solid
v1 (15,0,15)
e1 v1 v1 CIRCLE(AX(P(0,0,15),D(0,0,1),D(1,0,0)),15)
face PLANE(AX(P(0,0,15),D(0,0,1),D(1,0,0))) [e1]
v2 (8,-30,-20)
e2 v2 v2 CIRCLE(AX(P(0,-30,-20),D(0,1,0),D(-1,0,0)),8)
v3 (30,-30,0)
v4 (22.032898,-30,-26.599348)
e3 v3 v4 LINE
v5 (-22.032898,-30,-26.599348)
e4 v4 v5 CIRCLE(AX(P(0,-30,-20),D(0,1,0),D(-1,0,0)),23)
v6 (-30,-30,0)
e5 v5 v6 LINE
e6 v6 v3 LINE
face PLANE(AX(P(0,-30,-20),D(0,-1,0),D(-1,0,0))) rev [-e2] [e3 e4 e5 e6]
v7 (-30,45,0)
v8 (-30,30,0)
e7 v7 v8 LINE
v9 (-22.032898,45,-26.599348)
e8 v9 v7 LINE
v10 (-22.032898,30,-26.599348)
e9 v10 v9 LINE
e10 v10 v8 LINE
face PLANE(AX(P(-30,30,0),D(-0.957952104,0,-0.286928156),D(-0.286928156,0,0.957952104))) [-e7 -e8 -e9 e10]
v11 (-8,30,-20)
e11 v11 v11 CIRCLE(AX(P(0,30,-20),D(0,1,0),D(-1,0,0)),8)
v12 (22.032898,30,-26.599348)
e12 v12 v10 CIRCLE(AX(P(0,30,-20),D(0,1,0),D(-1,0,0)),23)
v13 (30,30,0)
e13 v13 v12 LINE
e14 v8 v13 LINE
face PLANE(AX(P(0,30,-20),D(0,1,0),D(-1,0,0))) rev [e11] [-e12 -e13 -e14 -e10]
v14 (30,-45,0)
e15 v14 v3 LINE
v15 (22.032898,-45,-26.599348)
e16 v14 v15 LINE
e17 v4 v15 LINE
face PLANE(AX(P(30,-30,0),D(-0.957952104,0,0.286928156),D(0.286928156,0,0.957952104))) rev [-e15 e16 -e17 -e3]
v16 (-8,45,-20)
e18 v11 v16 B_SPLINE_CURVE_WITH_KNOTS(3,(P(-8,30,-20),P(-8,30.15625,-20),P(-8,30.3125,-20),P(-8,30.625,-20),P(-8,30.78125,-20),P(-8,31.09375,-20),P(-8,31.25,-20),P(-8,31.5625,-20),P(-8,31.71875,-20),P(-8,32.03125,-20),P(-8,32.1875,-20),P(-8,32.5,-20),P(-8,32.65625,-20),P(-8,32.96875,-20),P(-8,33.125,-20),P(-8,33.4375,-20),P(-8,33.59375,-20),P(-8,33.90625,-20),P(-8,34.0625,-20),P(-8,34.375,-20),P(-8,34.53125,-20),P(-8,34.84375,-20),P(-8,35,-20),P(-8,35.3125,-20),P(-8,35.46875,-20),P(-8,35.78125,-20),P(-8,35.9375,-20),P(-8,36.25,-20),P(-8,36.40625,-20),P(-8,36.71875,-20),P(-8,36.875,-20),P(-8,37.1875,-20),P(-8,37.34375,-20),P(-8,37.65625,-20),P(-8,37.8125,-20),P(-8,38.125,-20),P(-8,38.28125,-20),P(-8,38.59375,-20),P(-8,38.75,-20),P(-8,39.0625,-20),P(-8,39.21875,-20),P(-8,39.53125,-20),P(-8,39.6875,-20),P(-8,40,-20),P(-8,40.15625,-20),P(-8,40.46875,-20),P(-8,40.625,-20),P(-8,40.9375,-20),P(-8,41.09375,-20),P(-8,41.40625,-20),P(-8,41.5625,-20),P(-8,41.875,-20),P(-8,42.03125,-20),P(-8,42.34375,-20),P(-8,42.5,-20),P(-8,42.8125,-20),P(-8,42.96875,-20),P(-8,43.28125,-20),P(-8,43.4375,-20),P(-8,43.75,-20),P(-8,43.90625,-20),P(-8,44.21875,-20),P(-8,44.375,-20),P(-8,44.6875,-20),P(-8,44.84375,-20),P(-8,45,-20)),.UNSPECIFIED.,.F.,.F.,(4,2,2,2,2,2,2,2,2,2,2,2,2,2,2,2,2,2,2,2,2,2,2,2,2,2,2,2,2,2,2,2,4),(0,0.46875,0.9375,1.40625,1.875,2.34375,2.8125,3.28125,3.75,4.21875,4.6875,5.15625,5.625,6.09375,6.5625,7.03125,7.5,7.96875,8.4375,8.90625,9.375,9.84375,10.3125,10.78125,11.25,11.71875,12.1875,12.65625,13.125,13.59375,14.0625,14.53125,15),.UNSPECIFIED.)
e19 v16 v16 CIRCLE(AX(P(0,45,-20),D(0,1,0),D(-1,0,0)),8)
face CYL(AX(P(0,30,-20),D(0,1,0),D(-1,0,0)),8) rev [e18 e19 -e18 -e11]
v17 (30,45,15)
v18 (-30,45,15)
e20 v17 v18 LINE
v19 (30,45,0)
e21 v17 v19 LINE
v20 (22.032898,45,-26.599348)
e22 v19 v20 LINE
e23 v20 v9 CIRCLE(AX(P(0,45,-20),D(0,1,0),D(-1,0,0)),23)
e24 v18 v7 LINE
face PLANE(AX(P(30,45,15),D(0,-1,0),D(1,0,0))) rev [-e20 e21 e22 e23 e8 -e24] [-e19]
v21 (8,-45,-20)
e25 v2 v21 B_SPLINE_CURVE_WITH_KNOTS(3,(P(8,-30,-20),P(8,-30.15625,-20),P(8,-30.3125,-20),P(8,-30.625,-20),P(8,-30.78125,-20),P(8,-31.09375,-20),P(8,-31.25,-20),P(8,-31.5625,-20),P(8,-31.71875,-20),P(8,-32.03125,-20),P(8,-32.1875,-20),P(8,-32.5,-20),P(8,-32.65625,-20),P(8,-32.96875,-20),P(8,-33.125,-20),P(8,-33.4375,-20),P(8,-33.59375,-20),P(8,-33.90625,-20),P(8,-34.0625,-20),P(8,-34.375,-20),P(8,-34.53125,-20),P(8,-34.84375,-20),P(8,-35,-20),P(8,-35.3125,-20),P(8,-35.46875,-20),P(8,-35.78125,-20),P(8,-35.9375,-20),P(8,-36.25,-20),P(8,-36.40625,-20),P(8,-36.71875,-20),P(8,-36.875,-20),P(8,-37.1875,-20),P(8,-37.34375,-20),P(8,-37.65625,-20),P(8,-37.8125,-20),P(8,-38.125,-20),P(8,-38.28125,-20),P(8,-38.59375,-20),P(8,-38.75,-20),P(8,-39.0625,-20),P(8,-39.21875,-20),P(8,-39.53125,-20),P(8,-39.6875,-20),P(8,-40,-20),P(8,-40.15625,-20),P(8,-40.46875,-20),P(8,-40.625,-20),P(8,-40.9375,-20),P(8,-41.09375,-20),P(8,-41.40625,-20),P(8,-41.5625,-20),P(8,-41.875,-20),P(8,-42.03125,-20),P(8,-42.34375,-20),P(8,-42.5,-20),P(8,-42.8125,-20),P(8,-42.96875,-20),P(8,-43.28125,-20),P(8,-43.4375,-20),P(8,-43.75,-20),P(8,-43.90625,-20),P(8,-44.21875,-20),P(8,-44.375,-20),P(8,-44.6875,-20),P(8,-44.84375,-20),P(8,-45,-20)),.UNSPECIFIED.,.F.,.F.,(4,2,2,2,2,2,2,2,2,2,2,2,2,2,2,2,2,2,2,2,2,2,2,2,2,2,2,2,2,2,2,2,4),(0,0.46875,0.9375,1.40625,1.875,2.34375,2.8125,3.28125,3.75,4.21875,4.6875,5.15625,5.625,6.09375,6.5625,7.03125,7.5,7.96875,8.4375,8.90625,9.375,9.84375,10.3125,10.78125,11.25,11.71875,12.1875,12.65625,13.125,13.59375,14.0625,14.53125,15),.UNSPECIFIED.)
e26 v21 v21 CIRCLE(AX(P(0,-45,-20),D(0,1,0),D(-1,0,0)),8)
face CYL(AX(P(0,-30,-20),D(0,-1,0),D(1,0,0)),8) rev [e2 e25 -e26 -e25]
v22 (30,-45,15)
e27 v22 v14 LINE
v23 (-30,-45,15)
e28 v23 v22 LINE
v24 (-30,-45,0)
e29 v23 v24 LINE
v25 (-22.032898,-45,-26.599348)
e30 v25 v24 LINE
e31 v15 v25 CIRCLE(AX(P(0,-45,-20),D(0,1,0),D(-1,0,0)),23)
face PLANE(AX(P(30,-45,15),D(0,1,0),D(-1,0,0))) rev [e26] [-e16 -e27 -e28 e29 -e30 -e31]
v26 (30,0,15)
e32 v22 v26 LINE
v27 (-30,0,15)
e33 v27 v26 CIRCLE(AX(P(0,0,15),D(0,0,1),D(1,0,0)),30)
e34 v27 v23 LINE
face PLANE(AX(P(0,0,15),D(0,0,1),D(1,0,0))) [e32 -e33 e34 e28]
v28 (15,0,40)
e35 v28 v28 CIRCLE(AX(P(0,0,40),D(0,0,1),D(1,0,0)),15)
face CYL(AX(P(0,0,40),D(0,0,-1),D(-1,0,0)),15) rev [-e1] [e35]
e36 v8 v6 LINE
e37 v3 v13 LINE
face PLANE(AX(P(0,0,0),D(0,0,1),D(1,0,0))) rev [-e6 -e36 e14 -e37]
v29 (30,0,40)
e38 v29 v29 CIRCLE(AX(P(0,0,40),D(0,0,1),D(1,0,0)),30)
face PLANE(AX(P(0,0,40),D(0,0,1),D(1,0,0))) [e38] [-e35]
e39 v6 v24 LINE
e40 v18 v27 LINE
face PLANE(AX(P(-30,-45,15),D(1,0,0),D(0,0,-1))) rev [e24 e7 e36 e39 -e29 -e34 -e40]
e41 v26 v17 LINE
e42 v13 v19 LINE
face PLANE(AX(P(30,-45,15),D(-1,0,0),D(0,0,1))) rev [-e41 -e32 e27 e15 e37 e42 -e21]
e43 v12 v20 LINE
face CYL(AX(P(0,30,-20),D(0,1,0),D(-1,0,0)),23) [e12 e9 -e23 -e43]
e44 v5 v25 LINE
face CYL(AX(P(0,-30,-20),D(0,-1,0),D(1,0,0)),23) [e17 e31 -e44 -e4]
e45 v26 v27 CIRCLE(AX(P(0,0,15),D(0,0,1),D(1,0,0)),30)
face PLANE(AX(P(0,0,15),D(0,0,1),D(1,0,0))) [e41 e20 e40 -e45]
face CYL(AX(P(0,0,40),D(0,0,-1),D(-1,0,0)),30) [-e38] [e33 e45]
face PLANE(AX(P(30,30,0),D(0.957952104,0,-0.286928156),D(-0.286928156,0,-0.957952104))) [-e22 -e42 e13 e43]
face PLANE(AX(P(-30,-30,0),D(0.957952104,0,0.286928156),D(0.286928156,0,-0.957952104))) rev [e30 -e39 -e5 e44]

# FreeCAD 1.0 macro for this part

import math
import FreeCAD as App
import Part
import Sketcher
Q = App.Units.Quantity


def add_polygon(sketch, points):
    """Adds a closed chain of lines whose ends are joined by coincident constraints."""
    first, n = sketch.GeometryCount, len(points)
    for a, b in zip(points, points[1:] + points[:1]):
        sketch.addGeometry(Part.LineSegment(App.Vector(*a, 0), App.Vector(*b, 0)), False)
    for i in range(n):
        sketch.addConstraint(Sketcher.Constraint("Coincident", first + i, 2, first + (i + 1) % n, 1))

doc = App.newDocument("Part")
body = doc.addObject("PartDesign::Body", "Body")

# Sketch on XY plane
sketch1 = body.newObject("Sketcher::SketchObject", "Sketch")
sketch1.AttachmentSupport = (doc.getObject("XY_Plane"), [""])
sketch1.MapMode = "FlatFace"
add_polygon(sketch1, [(-30, 45), (-30, -45), (30, -45), (30, 45)])  # lines 0-3
sketch1.addConstraint([
    Sketcher.Constraint("Vertical", 0),
    Sketcher.Constraint("Horizontal", 1),
    Sketcher.Constraint("Vertical", 2),
    Sketcher.Constraint("Horizontal", 3),
    Sketcher.Constraint("Symmetric", 0, 2, 2, 2, -1, 1),
    Sketcher.Constraint("DistanceX", 1, 1, 1, 2, Q("60 mm")),
    Sketcher.Constraint("DistanceY", 0, 2, 0, 1, Q("90 mm")),
])
pad1 = body.newObject("PartDesign::Pad", "Pad")
pad1.Profile = sketch1
pad1.Length = 15

# Sketch on XY plane
sketch2 = body.newObject("Sketcher::SketchObject", "Sketch001")
sketch2.AttachmentSupport = (doc.getObject("XY_Plane"), [""])
sketch2.MapMode = "FlatFace"
sketch2.AttachmentOffset = App.Placement(App.Vector(0, 0, 15), App.Rotation())
sketch2.addGeometry([
    Part.Circle(App.Vector(0, 0, 0), App.Vector(0, 0, 1), 30),
    Part.ArcOfCircle(Part.Circle(App.Vector(0, 0, 0), App.Vector(0, 0, 1), 15), math.radians(-75), math.radians(255)),
    Part.ArcOfCircle(Part.Circle(App.Vector(0, 0, 0), App.Vector(0, 0, 1), 15), math.radians(-105), math.radians(-75)),
], False)
sketch2.addConstraint([
    Sketcher.Constraint("Tangent", 1, 1, 2, 2),
    Sketcher.Constraint("Coincident", 2, 1, 1, 2),
    Sketcher.Constraint("Coincident", 0, 3, -1, 1),
    Sketcher.Constraint("Coincident", 1, 3, -1, 1),
    Sketcher.Constraint("Horizontal", 1, 1, 2, 1),
    Sketcher.Constraint("Diameter", 0, Q("60 mm")),
    Sketcher.Constraint("Radius", 1, Q("15 mm")),
    Sketcher.Constraint("DistanceX", -1, 1, 1, 1, Q("4 mm")),
])
pad2 = body.newObject("PartDesign::Pad", "Pad001")
pad2.Profile = sketch2
pad2.Length = 25

# Sketch on XZ plane
sketch3 = body.newObject("Sketcher::SketchObject", "Sketch002")
sketch3.AttachmentSupport = (doc.getObject("XZ_Plane"), [""])
sketch3.MapMode = "FlatFace"
sketch3.AttachmentOffset = App.Placement(App.Vector(0, 0, -45), App.Rotation())
sketch3.addGeometry([
    Part.LineSegment(App.Vector(30, 0, 0), App.Vector(22, -27, 0)),  # 0
    Part.ArcOfCircle(Part.Circle(App.Vector(0, -20, 0), App.Vector(0, 0, 1), 23), math.radians(-163), math.radians(-17)),  # 1
    Part.LineSegment(App.Vector(-22, -27, 0), App.Vector(-30, 0, 0)),  # 2
    Part.LineSegment(App.Vector(-30, 0, 0), App.Vector(30, 0, 0)),  # 3
    Part.Circle(App.Vector(0, -20, 0), App.Vector(0, 0, 1), 8),  # 4
], False)
sketch3.addConstraint([
    Sketcher.Constraint("Tangent", 0, 2, 1, 2),
    Sketcher.Constraint("Tangent", 1, 1, 2, 1),
    Sketcher.Constraint("Coincident", 2, 2, 3, 1),
    Sketcher.Constraint("Coincident", 3, 2, 0, 1),
    Sketcher.Constraint("Horizontal", 3),
    Sketcher.Constraint("Coincident", 4, 3, 1, 3),
    Sketcher.Constraint("Symmetric", 2, 2, 3, 2, -1, 1),
    Sketcher.Constraint("PointOnObject", 1, 3, -2),
    Sketcher.Constraint("Diameter", 4, Q("16 mm")),
    Sketcher.Constraint("Radius", 1, Q("23 mm")),
    Sketcher.Constraint("DistanceX", 3, 1, 3, 2, Q("60 mm")),
    Sketcher.Constraint("DistanceY", 1, 3, -1, 1, Q("20 mm")),
])
pad3 = body.newObject("PartDesign::Pad", "Pad002")
pad3.Profile = sketch3
pad3.Length = 15
doc.recompute()

mirrored = body.newObject("PartDesign::Mirrored", "Mirrored")
mirrored.Originals = [pad3]
mirrored.MirrorPlane = (doc.getObject("XZ_Plane"), [""])
body.Tip = mirrored

doc.recompute()
